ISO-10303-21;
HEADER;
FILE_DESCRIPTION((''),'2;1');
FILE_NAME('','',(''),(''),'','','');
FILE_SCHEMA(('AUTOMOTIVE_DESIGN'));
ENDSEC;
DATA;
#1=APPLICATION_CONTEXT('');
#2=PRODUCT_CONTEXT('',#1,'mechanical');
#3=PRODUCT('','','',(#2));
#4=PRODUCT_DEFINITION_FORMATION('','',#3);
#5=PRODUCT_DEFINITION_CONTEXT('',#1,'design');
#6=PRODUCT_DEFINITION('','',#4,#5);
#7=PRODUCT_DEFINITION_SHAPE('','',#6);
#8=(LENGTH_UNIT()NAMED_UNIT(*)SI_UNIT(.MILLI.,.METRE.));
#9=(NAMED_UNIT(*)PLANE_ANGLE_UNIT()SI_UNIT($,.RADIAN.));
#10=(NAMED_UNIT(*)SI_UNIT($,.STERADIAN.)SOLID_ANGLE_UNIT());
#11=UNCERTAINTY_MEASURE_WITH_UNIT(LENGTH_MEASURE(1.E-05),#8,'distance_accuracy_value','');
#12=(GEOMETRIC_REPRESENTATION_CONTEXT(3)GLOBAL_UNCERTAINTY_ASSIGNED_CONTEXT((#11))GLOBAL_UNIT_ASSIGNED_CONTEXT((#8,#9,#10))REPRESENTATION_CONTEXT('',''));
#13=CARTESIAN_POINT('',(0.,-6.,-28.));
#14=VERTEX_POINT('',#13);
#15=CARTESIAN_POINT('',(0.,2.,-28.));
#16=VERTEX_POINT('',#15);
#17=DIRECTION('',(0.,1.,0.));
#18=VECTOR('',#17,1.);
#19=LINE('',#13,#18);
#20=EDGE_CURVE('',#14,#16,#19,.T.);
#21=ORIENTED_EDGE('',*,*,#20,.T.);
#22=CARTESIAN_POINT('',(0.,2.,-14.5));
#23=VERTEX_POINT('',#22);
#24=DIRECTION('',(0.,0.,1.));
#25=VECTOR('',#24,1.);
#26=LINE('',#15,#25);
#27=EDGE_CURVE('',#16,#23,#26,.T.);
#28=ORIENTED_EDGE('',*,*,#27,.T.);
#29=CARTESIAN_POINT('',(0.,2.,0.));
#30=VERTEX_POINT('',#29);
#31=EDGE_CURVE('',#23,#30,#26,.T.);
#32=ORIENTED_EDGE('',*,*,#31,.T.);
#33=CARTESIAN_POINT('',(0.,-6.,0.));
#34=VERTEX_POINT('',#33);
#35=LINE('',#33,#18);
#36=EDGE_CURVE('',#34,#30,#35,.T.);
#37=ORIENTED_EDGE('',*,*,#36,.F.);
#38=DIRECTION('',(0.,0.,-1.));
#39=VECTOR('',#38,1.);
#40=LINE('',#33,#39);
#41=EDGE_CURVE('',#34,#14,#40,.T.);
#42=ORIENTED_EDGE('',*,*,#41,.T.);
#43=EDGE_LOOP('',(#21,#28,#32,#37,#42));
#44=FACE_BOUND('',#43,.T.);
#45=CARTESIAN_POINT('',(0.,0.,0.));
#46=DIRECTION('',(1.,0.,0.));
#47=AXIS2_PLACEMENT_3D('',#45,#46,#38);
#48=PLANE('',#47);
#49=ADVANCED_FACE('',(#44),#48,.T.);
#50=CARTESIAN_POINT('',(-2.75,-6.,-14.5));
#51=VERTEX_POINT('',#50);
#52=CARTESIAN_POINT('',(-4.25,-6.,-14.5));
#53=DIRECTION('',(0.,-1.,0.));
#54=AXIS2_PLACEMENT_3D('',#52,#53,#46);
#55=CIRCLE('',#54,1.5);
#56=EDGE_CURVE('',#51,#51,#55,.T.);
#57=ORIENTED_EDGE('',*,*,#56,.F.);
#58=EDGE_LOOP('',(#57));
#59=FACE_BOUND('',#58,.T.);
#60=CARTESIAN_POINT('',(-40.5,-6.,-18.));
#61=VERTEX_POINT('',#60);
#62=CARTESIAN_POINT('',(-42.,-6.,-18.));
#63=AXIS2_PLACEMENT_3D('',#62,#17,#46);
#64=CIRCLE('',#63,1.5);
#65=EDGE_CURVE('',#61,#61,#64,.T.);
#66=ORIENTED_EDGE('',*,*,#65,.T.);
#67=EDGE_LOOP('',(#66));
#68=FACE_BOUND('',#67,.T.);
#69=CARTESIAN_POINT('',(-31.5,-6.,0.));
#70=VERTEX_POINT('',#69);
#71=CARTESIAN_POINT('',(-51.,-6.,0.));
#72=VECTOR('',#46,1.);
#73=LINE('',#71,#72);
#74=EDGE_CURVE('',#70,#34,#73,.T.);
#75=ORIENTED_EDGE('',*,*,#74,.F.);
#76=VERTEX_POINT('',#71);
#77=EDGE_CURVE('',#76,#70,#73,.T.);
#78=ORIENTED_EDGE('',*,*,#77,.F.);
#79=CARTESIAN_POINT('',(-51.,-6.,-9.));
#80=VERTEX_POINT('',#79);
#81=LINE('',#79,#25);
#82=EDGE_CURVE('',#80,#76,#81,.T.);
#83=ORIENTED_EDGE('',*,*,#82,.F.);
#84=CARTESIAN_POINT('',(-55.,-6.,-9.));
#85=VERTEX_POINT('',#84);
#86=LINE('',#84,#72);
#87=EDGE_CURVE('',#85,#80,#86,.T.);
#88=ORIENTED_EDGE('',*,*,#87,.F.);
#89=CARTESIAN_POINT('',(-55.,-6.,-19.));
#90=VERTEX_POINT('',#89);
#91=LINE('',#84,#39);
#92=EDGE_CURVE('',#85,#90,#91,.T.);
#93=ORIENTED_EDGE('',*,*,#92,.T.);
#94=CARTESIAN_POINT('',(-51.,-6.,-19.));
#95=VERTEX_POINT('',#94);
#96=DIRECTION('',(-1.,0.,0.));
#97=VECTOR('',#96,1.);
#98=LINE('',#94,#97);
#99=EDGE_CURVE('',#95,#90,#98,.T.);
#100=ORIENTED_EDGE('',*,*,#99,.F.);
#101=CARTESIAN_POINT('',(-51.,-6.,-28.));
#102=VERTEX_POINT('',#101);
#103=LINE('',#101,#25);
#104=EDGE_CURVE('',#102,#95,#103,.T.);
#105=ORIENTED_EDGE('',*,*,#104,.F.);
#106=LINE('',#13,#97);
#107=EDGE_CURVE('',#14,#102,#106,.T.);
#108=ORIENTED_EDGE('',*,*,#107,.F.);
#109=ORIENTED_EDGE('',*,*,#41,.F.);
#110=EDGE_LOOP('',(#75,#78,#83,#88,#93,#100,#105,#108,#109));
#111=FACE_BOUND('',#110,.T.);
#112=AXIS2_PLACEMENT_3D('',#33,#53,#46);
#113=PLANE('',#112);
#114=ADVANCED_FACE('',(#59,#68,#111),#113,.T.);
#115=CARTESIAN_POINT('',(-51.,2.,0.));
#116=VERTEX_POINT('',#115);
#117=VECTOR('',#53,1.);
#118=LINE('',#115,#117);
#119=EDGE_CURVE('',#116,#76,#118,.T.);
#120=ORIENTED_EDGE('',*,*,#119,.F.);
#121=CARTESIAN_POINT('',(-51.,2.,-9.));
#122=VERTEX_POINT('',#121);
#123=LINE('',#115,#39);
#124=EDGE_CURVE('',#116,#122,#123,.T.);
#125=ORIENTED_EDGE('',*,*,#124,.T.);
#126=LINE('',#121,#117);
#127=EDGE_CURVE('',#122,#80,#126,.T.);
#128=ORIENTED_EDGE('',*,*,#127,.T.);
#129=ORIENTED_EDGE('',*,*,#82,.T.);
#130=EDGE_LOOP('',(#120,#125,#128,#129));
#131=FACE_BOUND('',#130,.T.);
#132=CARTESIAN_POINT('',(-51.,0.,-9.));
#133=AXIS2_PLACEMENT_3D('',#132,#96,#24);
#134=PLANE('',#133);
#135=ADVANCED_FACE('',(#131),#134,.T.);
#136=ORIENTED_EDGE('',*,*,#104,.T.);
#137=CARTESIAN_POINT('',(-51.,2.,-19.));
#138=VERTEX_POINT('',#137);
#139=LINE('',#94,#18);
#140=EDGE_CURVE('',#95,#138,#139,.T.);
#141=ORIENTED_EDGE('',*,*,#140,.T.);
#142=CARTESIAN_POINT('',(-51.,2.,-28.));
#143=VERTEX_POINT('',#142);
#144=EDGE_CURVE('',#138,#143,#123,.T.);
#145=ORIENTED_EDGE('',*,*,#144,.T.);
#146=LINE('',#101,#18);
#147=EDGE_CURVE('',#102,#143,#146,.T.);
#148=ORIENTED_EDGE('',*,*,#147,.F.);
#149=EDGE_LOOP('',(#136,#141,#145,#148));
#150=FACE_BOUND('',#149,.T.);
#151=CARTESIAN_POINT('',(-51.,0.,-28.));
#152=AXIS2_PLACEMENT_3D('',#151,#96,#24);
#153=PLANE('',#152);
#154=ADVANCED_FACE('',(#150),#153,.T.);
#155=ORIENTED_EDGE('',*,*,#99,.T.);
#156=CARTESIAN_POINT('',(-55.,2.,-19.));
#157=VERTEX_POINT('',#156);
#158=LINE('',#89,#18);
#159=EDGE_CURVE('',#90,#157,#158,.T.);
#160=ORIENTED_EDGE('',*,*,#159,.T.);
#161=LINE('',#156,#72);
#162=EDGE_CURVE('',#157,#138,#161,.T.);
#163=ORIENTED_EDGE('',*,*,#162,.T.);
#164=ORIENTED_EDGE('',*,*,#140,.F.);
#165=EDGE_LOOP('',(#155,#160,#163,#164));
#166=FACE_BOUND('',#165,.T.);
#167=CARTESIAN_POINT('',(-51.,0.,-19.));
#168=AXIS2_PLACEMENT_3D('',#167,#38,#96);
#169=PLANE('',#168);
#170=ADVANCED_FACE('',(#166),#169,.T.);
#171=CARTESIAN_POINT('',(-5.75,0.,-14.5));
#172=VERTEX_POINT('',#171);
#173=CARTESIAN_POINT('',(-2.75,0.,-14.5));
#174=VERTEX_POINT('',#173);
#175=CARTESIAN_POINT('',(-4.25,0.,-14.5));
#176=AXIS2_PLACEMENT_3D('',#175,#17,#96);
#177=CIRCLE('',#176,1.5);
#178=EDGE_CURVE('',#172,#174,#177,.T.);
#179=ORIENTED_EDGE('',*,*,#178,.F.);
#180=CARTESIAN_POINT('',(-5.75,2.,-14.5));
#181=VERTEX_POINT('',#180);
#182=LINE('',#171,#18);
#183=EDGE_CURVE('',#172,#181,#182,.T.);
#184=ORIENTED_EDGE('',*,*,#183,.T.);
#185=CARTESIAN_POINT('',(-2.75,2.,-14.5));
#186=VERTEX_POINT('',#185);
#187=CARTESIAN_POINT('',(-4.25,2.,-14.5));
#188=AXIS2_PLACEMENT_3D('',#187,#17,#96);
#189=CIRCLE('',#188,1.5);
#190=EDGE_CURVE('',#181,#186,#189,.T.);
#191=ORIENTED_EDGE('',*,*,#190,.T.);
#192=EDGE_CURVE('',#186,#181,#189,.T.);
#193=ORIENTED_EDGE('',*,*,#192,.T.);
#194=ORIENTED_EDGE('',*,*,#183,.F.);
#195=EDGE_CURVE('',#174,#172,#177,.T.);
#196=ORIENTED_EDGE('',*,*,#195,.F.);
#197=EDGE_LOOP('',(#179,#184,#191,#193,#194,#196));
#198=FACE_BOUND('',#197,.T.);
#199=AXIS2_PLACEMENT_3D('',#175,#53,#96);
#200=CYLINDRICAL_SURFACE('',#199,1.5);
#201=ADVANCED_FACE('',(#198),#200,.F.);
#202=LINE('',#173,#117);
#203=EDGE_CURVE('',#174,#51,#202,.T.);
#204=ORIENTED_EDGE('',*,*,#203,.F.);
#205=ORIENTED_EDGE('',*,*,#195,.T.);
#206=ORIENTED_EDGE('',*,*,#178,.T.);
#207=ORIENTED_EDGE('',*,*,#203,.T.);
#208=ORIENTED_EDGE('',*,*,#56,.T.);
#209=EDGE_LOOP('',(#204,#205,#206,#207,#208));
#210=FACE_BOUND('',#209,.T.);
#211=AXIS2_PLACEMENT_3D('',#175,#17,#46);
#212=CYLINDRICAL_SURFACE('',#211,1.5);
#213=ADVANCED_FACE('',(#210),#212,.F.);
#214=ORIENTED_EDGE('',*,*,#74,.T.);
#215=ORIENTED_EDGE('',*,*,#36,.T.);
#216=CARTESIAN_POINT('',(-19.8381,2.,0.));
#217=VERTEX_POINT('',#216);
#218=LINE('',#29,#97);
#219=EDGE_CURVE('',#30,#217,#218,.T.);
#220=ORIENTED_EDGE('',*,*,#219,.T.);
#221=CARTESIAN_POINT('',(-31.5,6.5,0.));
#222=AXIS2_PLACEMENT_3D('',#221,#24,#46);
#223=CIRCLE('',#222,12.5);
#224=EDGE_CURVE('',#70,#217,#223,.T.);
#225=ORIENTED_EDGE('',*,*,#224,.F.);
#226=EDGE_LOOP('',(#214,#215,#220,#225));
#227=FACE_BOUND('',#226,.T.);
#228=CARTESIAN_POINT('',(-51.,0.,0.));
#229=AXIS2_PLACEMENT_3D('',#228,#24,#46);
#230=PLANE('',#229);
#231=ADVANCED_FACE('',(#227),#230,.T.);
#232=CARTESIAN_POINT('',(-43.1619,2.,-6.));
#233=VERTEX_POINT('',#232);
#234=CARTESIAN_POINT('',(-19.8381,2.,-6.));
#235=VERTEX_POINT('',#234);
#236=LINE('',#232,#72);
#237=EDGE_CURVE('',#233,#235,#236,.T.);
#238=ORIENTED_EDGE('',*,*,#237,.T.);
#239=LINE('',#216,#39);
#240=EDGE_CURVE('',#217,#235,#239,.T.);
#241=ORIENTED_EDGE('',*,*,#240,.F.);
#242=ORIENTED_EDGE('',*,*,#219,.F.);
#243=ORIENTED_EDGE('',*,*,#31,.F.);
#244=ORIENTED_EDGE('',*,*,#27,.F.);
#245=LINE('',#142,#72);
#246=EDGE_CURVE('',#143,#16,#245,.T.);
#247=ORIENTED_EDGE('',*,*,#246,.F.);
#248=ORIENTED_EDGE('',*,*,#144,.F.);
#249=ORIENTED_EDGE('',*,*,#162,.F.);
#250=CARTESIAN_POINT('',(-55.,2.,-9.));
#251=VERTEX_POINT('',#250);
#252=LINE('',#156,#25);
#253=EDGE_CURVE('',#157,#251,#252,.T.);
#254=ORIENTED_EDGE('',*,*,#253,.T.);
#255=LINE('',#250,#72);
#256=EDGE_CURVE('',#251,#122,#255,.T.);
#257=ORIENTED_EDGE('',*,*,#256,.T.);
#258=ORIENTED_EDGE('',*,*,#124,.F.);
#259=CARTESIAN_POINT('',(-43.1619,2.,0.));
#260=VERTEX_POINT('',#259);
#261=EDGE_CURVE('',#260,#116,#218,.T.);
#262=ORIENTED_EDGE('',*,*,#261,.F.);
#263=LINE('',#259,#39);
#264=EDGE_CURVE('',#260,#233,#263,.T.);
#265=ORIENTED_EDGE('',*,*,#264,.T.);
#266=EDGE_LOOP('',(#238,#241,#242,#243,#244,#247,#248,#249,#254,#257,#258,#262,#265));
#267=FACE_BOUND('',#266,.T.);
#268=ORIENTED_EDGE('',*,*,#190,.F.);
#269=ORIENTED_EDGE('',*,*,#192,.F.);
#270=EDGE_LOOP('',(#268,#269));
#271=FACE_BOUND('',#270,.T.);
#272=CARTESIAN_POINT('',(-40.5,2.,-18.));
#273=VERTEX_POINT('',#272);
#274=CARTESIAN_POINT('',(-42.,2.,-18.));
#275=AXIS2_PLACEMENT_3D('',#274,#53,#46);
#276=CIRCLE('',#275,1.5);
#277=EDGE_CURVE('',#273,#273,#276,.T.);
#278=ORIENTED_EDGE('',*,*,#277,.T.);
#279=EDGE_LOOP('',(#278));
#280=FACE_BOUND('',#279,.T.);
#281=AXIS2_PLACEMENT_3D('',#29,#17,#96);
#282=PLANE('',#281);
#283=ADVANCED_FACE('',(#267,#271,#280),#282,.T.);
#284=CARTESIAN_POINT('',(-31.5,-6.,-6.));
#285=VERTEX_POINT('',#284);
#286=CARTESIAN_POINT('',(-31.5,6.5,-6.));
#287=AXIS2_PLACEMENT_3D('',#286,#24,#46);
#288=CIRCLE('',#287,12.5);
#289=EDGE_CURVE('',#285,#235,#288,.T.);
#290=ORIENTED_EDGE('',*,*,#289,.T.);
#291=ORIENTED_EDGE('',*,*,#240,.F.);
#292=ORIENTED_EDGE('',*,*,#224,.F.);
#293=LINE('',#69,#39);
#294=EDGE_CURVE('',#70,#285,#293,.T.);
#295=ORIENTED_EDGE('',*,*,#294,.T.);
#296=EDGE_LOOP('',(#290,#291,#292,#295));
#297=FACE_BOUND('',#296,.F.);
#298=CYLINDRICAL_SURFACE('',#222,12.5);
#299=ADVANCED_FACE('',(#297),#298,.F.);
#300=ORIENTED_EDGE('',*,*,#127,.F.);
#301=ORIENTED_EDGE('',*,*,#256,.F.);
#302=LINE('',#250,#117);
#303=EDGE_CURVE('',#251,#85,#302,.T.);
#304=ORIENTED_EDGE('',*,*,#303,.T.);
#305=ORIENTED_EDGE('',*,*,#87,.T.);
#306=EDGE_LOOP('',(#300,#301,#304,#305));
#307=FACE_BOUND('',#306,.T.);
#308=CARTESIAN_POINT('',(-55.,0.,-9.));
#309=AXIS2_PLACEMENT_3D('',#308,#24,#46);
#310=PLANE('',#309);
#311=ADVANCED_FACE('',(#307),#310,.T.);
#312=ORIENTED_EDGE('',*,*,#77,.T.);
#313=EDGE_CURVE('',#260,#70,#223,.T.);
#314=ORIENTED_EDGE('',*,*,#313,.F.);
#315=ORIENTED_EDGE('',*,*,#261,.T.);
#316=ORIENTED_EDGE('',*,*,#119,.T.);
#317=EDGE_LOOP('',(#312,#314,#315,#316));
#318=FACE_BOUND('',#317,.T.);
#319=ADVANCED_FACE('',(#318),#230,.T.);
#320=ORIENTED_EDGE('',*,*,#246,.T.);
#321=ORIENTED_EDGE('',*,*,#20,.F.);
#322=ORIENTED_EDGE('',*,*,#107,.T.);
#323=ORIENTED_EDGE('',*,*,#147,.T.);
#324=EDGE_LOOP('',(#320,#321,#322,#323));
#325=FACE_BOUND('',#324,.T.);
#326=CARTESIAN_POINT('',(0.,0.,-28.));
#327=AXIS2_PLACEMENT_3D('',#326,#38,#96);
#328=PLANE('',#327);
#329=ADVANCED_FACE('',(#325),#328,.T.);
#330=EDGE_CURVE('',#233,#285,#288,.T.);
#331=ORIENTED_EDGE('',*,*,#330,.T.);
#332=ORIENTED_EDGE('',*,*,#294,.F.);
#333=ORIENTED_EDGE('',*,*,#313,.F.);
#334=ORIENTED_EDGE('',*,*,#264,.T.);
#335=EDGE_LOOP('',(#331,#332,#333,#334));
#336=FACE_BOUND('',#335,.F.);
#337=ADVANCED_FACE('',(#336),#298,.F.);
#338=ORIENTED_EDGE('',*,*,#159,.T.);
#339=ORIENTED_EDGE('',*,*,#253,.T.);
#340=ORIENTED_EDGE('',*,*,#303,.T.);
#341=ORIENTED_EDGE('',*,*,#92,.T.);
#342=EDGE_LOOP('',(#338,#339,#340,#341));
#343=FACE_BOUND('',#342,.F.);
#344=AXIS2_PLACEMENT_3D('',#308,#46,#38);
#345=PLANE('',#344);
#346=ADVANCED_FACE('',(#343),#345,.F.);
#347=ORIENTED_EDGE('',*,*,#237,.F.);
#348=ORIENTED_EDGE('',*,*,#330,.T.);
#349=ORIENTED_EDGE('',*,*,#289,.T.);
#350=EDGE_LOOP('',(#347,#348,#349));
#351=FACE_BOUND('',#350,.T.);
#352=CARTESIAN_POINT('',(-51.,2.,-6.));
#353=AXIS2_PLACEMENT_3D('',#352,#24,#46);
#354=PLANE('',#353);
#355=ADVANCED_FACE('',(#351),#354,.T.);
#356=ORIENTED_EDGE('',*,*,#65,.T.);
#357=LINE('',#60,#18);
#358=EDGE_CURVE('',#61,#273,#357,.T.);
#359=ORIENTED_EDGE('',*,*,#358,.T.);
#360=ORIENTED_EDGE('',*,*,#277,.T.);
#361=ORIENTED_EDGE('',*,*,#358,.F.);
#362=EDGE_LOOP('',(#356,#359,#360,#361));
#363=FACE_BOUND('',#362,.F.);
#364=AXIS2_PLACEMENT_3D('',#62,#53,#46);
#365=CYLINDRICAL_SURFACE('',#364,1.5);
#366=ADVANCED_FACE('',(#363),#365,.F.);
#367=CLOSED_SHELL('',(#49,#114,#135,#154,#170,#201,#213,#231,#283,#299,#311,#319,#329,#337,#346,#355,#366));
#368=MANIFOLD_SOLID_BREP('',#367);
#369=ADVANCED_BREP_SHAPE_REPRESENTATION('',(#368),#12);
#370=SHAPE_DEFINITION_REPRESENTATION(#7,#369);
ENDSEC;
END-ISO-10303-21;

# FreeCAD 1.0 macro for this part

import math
import FreeCAD as App
import Part
import Sketcher
from FreeCAD import Vector


def add_polygon(sketch, points):
    """Adds a closed chain of lines whose ends are joined by coincident constraints."""
    first, n = sketch.GeometryCount, len(points)
    for a, b in zip(points, points[1:] + points[:1]):
        sketch.addGeometry(Part.LineSegment(App.Vector(*a, 0), App.Vector(*b, 0)), False)
    for i in range(n):
        sketch.addConstraint(Sketcher.Constraint("Coincident", first + i, 2, first + (i + 1) % n, 1))

doc = App.newDocument("Part")
body = doc.addObject("PartDesign::Body", "Body")

sketch1 = body.newObject("Sketcher::SketchObject", "Sketch")
sketch1.AttachmentSupport = (doc.getObject("XZ_Plane"), [""])
sketch1.MapMode = "FlatFace"
add_polygon(sketch1, [(-51, 0), (0, 0), (0, -14.5), (0, -28), (-51, -28), (-51, -19), (-55, -19), (-55, -9), (-51, -9)])
sketch1.addGeometry(Part.Circle(Vector(-4.2, -14.5, 0), Vector(0, 0, 1), 1.5), False)
sketch1.addGeometry(Part.Circle(Vector(-42, -18.5, 0), Vector(0, 0, 1), 1.5), False)
sketch1.addConstraint(Sketcher.Constraint("Horizontal", 0))
sketch1.addConstraint(Sketcher.Constraint("Vertical", 1))
sketch1.addConstraint(Sketcher.Constraint("Vertical", 2))
sketch1.addConstraint(Sketcher.Constraint("Horizontal", 3))
sketch1.addConstraint(Sketcher.Constraint("Vertical", 4))
sketch1.addConstraint(Sketcher.Constraint("Horizontal", 5))
sketch1.addConstraint(Sketcher.Constraint("Vertical", 6))
sketch1.addConstraint(Sketcher.Constraint("Horizontal", 7))
sketch1.addConstraint(Sketcher.Constraint("Vertical", 8))
sketch1.addConstraint(Sketcher.Constraint("Coincident", 0, 2, -1, 1))
sketch1.addConstraint(Sketcher.Constraint("Equal", 9, 10))
sketch1.addConstraint(Sketcher.Constraint("Horizontal", 9, 3, 1, 2))
sketch1.addConstraint(Sketcher.Constraint("Vertical", 4, 2, 7, 2))
sketch1.addConstraint(Sketcher.Constraint("Equal", 4, 8))
sketch1.addConstraint(Sketcher.Constraint("Diameter", 9, 3.0))
sketch1.addConstraint(Sketcher.Constraint("DistanceX", 0, 1, 0, 2, 51.0))
sketch1.addConstraint(Sketcher.Constraint("DistanceX", 5, 2, 5, 1, 4.0))
sketch1.addConstraint(Sketcher.Constraint("DistanceY", 4, 1, 4, 2, 9.0))
sketch1.addConstraint(Sketcher.Constraint("DistanceY", 1, 2, 1, 1, 14.5))
sketch1.addConstraint(Sketcher.Constraint("DistanceY", 2, 2, -1, 1, 28.0))
sketch1.addConstraint(Sketcher.Constraint("DistanceY", 10, 3, 9, 3, 4.0))
sketch1.addConstraint(Sketcher.Constraint("DistanceX", 3, 2, 10, 3, 9.0))
sketch1.addConstraint(Sketcher.Constraint("DistanceX", 9, 3, -1, 1, 4.25))
pad1 = body.newObject("PartDesign::Pad", "Pad")
pad1.Profile = sketch1
pad1.Length = 2
pad1.Reversed = True

sketch2 = body.newObject("Sketcher::SketchObject", "Sketch001")
sketch2.AttachmentSupport = (doc.getObject("XZ_Plane"), [""])
sketch2.MapMode = "FlatFace"
sketch2.addGeometry(Part.Circle(Vector(-42, -18.5, 0), Vector(0, 0, 1), 1.5), False)
sketch2.addConstraint(Sketcher.Constraint("Diameter", 0, 3.0))
sketch2.addConstraint(Sketcher.Constraint("DistanceX", 0, 3, -1, 1, 42.0))
sketch2.addConstraint(Sketcher.Constraint("DistanceY", 0, 3, -1, 1, 18.5))
pad2 = body.newObject("PartDesign::Pad", "Pad001")
pad2.Profile = sketch2
pad2.Length = 2
pad2.Reversed = True

sketch3 = body.newObject("Sketcher::SketchObject", "Sketch002")
sketch3.AttachmentSupport = (doc.getObject("XZ_Plane"), [""])
sketch3.MapMode = "FlatFace"
add_polygon(sketch3, [(0, 0), (-51, 0), (-51, -9), (-55, -9), (-55, -19), (-51, -19), (-51, -28), (0, -28)])
sketch3.addGeometry(Part.Circle(Vector(-4.2, -14.5, 0), Vector(0, 0, 1), 1.5), False)
sketch3.addConstraint(Sketcher.Constraint("Horizontal", 0))
sketch3.addConstraint(Sketcher.Constraint("Vertical", 1))
sketch3.addConstraint(Sketcher.Constraint("Horizontal", 2))
sketch3.addConstraint(Sketcher.Constraint("Vertical", 3))
sketch3.addConstraint(Sketcher.Constraint("Horizontal", 4))
sketch3.addConstraint(Sketcher.Constraint("Vertical", 5))
sketch3.addConstraint(Sketcher.Constraint("Horizontal", 6))
sketch3.addConstraint(Sketcher.Constraint("Vertical", 7))
sketch3.addConstraint(Sketcher.Constraint("Coincident", 7, 2, -1, 1))
sketch3.addConstraint(Sketcher.Constraint("Vertical", 1, 2, 4, 2))
sketch3.addConstraint(Sketcher.Constraint("Equal", 1, 5))
sketch3.addConstraint(Sketcher.Constraint("Diameter", 8, 3.0))
sketch3.addConstraint(Sketcher.Constraint("DistanceX", 0, 2, 0, 1, 51.0))
sketch3.addConstraint(Sketcher.Constraint("DistanceX", 2, 2, 2, 1, 4.0))
sketch3.addConstraint(Sketcher.Constraint("DistanceY", 1, 2, 1, 1, 9.0))
sketch3.addConstraint(Sketcher.Constraint("DistanceY", 3, 2, 3, 1, 10.0))
sketch3.addConstraint(Sketcher.Constraint("DistanceY", 8, 3, -1, 1, 14.5))
sketch3.addConstraint(Sketcher.Constraint("DistanceX", 8, 3, -1, 1, 4.25))
pad3 = body.newObject("PartDesign::Pad", "Pad002")
pad3.Profile = sketch3
pad3.Length = 6

sketch4 = body.newObject("Sketcher::SketchObject", "Sketch003")
sketch4.AttachmentSupport = (doc.getObject("XZ_Plane"), [""])
sketch4.MapMode = "FlatFace"
sketch4.AttachmentOffset = App.Placement(Vector(0, 0, 6), App.Rotation())
sketch4.addGeometry(Part.Circle(Vector(-42, -18, 0), Vector(0, 0, 1), 1.5), False)
sketch4.addConstraint(Sketcher.Constraint("Diameter", 0, 3.0))
sketch4.addConstraint(Sketcher.Constraint("DistanceX", 0, 3, -1, 1, 42.0))
sketch4.addConstraint(Sketcher.Constraint("DistanceY", 0, 3, -1, 1, 18.0))
pocket1 = body.newObject("PartDesign::Pocket", "Pocket")
pocket1.Profile = sketch4
pocket1.Length = 8

sketch5 = body.newObject("Sketcher::SketchObject", "Sketch004")
sketch5.AttachmentSupport = (doc.getObject("XY_Plane"), [""])
sketch5.MapMode = "FlatFace"
sketch5.addGeometry(Part.ArcOfCircle(Part.Circle(Vector(-32, 6, 0), Vector(0, 0, 1), 12), math.radians(-159), math.radians(-21)), False)
sketch5.addGeometry(Part.LineSegment(Vector(-43, 2, 0), Vector(-20, 2, 0)), False)
sketch5.addConstraint(Sketcher.Constraint("Coincident", 0, 1, 1, 1))
sketch5.addConstraint(Sketcher.Constraint("Coincident", 1, 2, 0, 2))
sketch5.addConstraint(Sketcher.Constraint("Horizontal", 1))
sketch5.addConstraint(Sketcher.Constraint("Radius", 0, 12.5))
sketch5.addConstraint(Sketcher.Constraint("DistanceY", -1, 1, 0, 1, 2.0))
sketch5.addConstraint(Sketcher.Constraint("DistanceX", 0, 3, -1, 1, 31.5))
sketch5.addConstraint(Sketcher.Constraint("DistanceY", -1, 1, 0, 3, 6.5))
pocket2 = body.newObject("PartDesign::Pocket", "Pocket001")
pocket2.Profile = sketch5
pocket2.Length = 6

doc.recompute()
